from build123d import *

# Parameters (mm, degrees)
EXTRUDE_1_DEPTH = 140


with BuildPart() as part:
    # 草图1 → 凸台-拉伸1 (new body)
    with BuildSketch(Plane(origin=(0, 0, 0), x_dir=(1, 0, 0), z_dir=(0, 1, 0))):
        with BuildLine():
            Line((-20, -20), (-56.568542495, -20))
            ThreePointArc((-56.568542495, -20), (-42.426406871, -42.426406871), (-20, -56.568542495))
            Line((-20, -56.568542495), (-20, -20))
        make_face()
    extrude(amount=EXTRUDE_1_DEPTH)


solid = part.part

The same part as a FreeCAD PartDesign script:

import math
import FreeCAD as App
import Part
import Sketcher

V = App.Vector
Q = App.Units.Quantity

doc = App.newDocument("Part")
body = doc.addObject("PartDesign::Body", "Body")

# Sketch on XZ plane
sketch1 = body.newObject("Sketcher::SketchObject", "Sketch")
sketch1.AttachmentSupport = (doc.getObject("XZ_Plane"), [""])
sketch1.MapMode = "FlatFace"
sketch1.addGeometry(Part.LineSegment(V(-20, 20, 0), V(-57, 20, 0)), False)
sketch1.addGeometry(Part.ArcOfCircle(Part.Circle(V(0, 0, 0), V(0, 0, 1), 60), math.radians(109), math.radians(161)), False)
sketch1.addGeometry(Part.LineSegment(V(-20, 57, 0), V(-20, 20, 0)), False)
sketch1.addConstraint(Sketcher.Constraint("Coincident", 0, 2, 1, 2))
sketch1.addConstraint(Sketcher.Constraint("Coincident", 1, 1, 2, 1))
sketch1.addConstraint(Sketcher.Constraint("Coincident", 2, 2, 0, 1))
sketch1.addConstraint(Sketcher.Constraint("Horizontal", 0))
sketch1.addConstraint(Sketcher.Constraint("Vertical", 2))
sketch1.addConstraint(Sketcher.Constraint("Coincident", 1, 3, -1, 1))
sketch1.addConstraint(Sketcher.Constraint("Equal", 0, 2))
sketch1.addConstraint(Sketcher.Constraint("Radius", 1, Q("60 mm")))
sketch1.addConstraint(Sketcher.Constraint("DistanceY", -1, 1, 0, 2, Q("20 mm")))
pad1 = body.newObject("PartDesign::Pad", "Pad")
pad1.Profile = sketch1
pad1.Length = 140
pad1.Reversed = True

doc.recompute()
